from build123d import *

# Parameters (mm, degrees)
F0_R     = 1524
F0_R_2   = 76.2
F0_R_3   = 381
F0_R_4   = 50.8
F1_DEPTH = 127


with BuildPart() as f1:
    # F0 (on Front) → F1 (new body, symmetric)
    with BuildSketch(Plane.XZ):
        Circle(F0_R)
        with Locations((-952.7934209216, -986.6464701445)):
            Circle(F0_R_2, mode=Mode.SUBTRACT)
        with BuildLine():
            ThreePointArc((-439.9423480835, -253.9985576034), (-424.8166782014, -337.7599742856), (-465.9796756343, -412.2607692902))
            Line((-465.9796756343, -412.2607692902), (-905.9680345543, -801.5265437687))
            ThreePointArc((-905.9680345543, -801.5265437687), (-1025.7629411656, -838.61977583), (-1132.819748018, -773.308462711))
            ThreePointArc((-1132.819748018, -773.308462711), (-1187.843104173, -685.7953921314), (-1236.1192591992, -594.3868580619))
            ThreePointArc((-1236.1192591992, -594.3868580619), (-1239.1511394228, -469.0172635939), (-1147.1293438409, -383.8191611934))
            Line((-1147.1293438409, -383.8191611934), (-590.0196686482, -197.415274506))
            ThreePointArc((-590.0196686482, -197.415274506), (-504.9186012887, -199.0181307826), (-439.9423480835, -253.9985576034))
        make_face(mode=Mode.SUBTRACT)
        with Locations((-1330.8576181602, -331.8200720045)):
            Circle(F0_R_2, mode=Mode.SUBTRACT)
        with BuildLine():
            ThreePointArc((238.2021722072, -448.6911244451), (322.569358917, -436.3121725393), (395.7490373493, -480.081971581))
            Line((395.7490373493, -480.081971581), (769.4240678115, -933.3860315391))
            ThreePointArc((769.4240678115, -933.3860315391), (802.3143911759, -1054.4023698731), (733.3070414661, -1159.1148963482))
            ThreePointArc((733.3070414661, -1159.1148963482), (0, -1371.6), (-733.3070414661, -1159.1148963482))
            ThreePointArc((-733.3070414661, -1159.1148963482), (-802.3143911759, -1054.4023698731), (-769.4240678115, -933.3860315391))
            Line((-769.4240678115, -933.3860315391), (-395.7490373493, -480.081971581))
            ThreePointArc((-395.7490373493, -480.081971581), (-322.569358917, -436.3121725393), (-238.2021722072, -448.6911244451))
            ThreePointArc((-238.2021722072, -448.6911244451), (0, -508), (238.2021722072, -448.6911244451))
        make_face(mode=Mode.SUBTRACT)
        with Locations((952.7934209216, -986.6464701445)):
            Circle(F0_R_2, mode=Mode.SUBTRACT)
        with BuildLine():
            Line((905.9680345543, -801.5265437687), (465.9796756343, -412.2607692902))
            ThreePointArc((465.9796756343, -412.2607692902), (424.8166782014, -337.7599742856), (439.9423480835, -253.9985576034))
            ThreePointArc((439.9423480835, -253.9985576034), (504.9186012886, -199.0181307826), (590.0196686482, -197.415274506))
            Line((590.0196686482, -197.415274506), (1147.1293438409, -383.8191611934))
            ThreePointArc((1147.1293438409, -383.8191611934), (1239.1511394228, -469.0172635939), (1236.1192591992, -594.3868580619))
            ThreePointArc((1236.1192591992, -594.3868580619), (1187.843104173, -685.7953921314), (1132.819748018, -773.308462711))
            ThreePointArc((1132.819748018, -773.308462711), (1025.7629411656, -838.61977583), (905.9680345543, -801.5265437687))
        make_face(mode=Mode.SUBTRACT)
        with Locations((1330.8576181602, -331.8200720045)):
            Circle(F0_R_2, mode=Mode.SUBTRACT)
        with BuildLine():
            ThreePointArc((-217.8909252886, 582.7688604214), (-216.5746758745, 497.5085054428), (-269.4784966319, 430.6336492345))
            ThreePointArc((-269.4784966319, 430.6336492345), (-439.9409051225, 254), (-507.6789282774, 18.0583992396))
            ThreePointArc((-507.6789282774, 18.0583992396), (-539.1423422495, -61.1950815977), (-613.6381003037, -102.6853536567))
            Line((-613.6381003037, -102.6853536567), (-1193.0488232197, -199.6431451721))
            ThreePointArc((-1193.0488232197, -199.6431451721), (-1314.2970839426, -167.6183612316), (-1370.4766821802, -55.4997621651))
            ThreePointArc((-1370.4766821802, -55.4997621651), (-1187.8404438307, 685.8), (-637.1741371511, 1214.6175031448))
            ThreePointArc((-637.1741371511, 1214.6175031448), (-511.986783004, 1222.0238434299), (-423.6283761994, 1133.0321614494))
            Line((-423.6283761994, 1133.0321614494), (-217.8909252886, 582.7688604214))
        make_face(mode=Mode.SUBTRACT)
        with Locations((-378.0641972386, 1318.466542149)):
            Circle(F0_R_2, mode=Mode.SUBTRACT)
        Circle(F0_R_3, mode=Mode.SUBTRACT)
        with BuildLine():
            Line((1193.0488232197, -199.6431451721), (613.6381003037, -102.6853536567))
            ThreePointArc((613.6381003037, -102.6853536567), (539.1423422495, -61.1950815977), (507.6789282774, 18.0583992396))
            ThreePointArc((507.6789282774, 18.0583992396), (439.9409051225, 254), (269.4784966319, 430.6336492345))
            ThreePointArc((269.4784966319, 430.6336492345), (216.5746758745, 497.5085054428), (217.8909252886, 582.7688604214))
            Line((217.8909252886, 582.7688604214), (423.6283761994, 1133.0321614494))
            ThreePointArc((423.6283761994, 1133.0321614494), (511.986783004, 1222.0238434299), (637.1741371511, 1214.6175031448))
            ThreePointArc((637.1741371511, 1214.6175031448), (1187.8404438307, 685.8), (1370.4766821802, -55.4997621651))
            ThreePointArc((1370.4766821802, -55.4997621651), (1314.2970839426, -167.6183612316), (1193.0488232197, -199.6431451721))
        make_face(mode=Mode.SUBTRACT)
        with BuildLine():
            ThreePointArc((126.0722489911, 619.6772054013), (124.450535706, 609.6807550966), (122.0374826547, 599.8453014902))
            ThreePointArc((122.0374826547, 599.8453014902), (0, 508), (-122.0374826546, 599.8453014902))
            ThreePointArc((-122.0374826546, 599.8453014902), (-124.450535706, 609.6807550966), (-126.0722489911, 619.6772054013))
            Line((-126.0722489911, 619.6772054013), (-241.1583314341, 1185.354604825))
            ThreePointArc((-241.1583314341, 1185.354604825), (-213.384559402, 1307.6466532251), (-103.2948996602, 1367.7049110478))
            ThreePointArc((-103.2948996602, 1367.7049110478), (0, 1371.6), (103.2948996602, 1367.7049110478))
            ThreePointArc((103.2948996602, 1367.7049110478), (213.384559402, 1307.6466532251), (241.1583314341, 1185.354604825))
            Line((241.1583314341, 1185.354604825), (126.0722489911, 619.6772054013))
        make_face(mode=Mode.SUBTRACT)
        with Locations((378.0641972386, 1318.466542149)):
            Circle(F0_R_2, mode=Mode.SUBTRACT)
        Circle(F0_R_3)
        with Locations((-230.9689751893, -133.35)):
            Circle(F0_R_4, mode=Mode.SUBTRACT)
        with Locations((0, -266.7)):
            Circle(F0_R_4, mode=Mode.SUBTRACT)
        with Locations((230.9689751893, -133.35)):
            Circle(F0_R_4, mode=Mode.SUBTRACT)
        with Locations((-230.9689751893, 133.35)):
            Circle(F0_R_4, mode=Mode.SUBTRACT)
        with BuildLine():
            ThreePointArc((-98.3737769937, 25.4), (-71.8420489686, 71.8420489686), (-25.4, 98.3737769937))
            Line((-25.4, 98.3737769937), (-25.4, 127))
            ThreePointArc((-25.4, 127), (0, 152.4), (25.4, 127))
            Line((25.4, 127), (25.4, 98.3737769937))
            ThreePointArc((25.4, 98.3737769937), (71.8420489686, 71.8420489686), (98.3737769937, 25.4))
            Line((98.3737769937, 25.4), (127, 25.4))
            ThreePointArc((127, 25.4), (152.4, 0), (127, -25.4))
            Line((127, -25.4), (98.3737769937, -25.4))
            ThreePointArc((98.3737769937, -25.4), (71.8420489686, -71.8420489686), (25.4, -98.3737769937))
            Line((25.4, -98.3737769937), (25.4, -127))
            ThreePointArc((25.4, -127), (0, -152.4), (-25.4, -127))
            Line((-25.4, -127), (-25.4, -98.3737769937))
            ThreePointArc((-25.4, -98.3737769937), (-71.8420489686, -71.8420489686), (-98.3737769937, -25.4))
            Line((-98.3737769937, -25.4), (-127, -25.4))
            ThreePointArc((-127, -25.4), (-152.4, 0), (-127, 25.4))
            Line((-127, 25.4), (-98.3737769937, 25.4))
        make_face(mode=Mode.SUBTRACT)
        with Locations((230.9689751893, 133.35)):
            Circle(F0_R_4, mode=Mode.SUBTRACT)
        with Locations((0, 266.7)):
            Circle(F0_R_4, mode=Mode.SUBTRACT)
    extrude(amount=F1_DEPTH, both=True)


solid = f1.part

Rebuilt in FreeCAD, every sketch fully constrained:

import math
import FreeCAD as App
import Part
import Sketcher

V = App.Vector
Q = App.Units.Quantity

doc = App.newDocument("Part")
body = doc.addObject("PartDesign::Body", "Body")

# Sketch on XZ plane
sketch1 = body.newObject("Sketcher::SketchObject", "Sketch")
sketch1.AttachmentSupport = (doc.getObject("XZ_Plane"), [""])
sketch1.MapMode = "FlatFace"
sketch1.addGeometry([
    Part.Circle(V(0, 0, 0), V(0, 0, 1), 1524),  # 0
    Part.Circle(V(-952.793421, -986.64647, 0), V(0, 0, 1), 76.2),  # 1
    Part.ArcOfCircle(Part.Circle(V(0, 0, 0), V(0, 0, 1), 508), math.radians(-117.963041), math.radians(-62.036959)),  # 2
    Part.ArcOfCircle(Part.Circle(V(297.752715, -560.863906, 0), V(0, 0, 1), 127), math.radians(39.5), math.radians(117.963041)),  # 3
    Part.LineSegment(V(395.749037, -480.081972, 0), V(769.424068, -933.386032, 0)),  # 4
    Part.ArcOfCircle(Part.Circle(V(651.828481, -1030.324352, 0), V(0, 0, 1), 152.4), math.radians(-57.680756), math.radians(39.5)),  # 5
    Part.ArcOfCircle(Part.Circle(V(0, 0, 0), V(0, 0, 1), 1371.6), math.radians(-122.319244), math.radians(-57.680756)),  # 6
    Part.ArcOfCircle(Part.Circle(V(-651.828481, -1030.324352, 0), V(0, 0, 1), 152.4), math.radians(140.5), math.radians(237.680756)),  # 7
    Part.LineSegment(V(-769.424068, -933.386032, 0), V(-395.749037, -480.081972, 0)),  # 8
    Part.ArcOfCircle(Part.Circle(V(-297.752715, -560.863906, 0), V(0, 0, 1), 127), math.radians(62.036959), math.radians(140.5)),  # 9
    Part.ArcOfCircle(Part.Circle(V(-549.722444, -317.852535, 0), V(0, 0, 1), 127), math.radians(30.184573), math.radians(108.499778)),  # 10
    Part.ArcOfCircle(Part.Circle(V(-550.132053, -317.143066, 0), V(0, 0, 1), 127), math.radians(-48.500222), math.radians(29.814982)),  # 11
    Part.LineSegment(V(-465.979676, -412.260769, 0), V(-905.968035, -801.526544, 0)),  # 12
    Part.ArcOfCircle(Part.Circle(V(-1006.950887, -687.3853, 0), V(0, 0, 1), 152.4), math.radians(-145.680978), math.radians(-48.500222)),  # 13
    Part.ArcOfCircle(Part.Circle(V(0, 0, 0), V(0, 0, 1), 1371.6), math.radians(-154.319466), math.radians(-145.680978)),  # 14
    Part.ArcOfCircle(Part.Circle(V(-1098.772675, -528.343874, 0), V(0, 0, 1), 152.4), math.radians(108.499778), math.radians(205.680534)),  # 15
    Part.LineSegment(V(-1147.129344, -383.819161, 0), V(-590.019669, -197.415275, 0)),  # 16
    Part.Circle(V(-1330.857618, -331.820072, 0), V(0, 0, 1), 76.2),  # 17
    Part.Circle(V(0, -266.7, 0), V(0, 0, 1), 50.8),  # 18
    Part.Circle(V(-230.968975, -133.35, 0), V(0, 0, 1), 50.8),  # 19
    Part.LineSegment(V(-127, 25.4, 0), V(-98.373777, 25.4, 0)),  # 20
    Part.ArcOfCircle(Part.Circle(V(0, 0, 0), V(0, 0, 1), 101.6), math.radians(104.477512), math.radians(165.522488)),  # 21
    Part.LineSegment(V(-25.4, 98.373777, 0), V(-25.4, 127, 0)),  # 22
    Part.ArcOfCircle(Part.Circle(V(0, 127, 0), V(0, 0, 1), 25.4), math.radians(0), math.radians(180)),  # 23
    Part.LineSegment(V(25.4, 127, 0), V(25.4, 98.373777, 0)),  # 24
    Part.ArcOfCircle(Part.Circle(V(0, 0, 0), V(0, 0, 1), 101.6), math.radians(14.477512), math.radians(75.522488)),  # 25
    Part.LineSegment(V(98.373777, 25.4, 0), V(127, 25.4, 0)),  # 26
    Part.ArcOfCircle(Part.Circle(V(127, 0, 0), V(0, 0, 1), 25.4), math.radians(-90), math.radians(90)),  # 27
    Part.LineSegment(V(127, -25.4, 0), V(98.373777, -25.4, 0)),  # 28
    Part.ArcOfCircle(Part.Circle(V(0, 0, 0), V(0, 0, 1), 101.6), math.radians(-75.522488), math.radians(-14.477512)),  # 29
    Part.LineSegment(V(25.4, -98.373777, 0), V(25.4, -127, 0)),  # 30
    Part.ArcOfCircle(Part.Circle(V(0, -127, 0), V(0, 0, 1), 25.4), math.radians(180), math.radians(360)),  # 31
    Part.LineSegment(V(-25.4, -127, 0), V(-25.4, -98.373777, 0)),  # 32
    Part.ArcOfCircle(Part.Circle(V(0, 0, 0), V(0, 0, 1), 101.6), math.radians(-165.522488), math.radians(-104.477512)),  # 33
    Part.LineSegment(V(-98.373777, -25.4, 0), V(-127, -25.4, 0)),  # 34
    Part.ArcOfCircle(Part.Circle(V(-127, 0, 0), V(0, 0, 1), 25.4), math.radians(90), math.radians(270)),  # 35
    Part.Circle(V(952.793421, -986.64647, 0), V(0, 0, 1), 76.2),  # 36
    Part.Circle(V(230.968975, -133.35, 0), V(0, 0, 1), 50.8),  # 37
    Part.ArcOfCircle(Part.Circle(V(1006.950887, -687.3853, 0), V(0, 0, 1), 152.4), math.radians(-131.499778), math.radians(-34.319022)),  # 38
    Part.LineSegment(V(905.968035, -801.526544, 0), V(465.979676, -412.260769, 0)),  # 39
    Part.ArcOfCircle(Part.Circle(V(550.132053, -317.143066, 0), V(0, 0, 1), 127), math.radians(150.185018), math.radians(228.500222)),  # 40
    Part.ArcOfCircle(Part.Circle(V(549.722444, -317.852535, 0), V(0, 0, 1), 127), math.radians(71.500222), math.radians(149.815427)),  # 41
    Part.LineSegment(V(590.019669, -197.415275, 0), V(1147.129344, -383.819161, 0)),  # 42
    Part.ArcOfCircle(Part.Circle(V(1098.772675, -528.343874, 0), V(0, 0, 1), 152.4), math.radians(-25.680534), math.radians(71.500222)),  # 43
    Part.ArcOfCircle(Part.Circle(V(0, 0, 0), V(0, 0, 1), 1371.6), math.radians(-34.319022), math.radians(-25.680534)),  # 44
    Part.Circle(V(1330.857618, -331.820072, 0), V(0, 0, 1), 76.2),  # 45
    Part.LineSegment(V(-423.628376, 1133.032161, 0), V(-217.890925, 582.76886, 0)),  # 46
    Part.ArcOfCircle(Part.Circle(V(-336.848121, 538.292062, 0), V(0, 0, 1), 127), math.radians(-57.962819), math.radians(20.500222)),  # 47
    Part.ArcOfCircle(Part.Circle(V(0, 0, 0), V(0, 0, 1), 508), math.radians(122.037181), math.radians(177.962819)),  # 48
    Part.ArcOfCircle(Part.Circle(V(-634.59866, 22.572999, 0), V(0, 0, 1), 127), math.radians(-80.500222), math.radians(-2.037181)),  # 49
    Part.LineSegment(V(-613.6381, -102.685354, 0), V(-1193.048823, -199.643145, 0)),  # 50
    Part.ArcOfCircle(Part.Circle(V(-1218.201495, -49.333122, 0), V(0, 0, 1), 152.4), math.radians(-177.680978), math.radians(-80.500222)),  # 51
    Part.ArcOfCircle(Part.Circle(V(0, 0, 0), V(0, 0, 1), 1371.6), math.radians(117.680978), math.radians(182.319022)),  # 52
    Part.ArcOfCircle(Part.Circle(V(-566.377011, 1079.660003, 0), V(0, 0, 1), 152.4), math.radians(20.500222), math.radians(117.680978)),  # 53
    Part.Circle(V(-230.968975, 133.35, 0), V(0, 0, 1), 50.8),  # 54
    Part.Circle(V(0, 266.7, 0), V(0, 0, 1), 50.8),  # 55
    Part.LineSegment(V(241.158331, 1185.354605, 0), V(126.072249, 619.677205, 0)),  # 56
    Part.ArcOfCircle(Part.Circle(V(0, 635, 0), V(0, 0, 1), 127), math.radians(-16.069827), math.radians(-6.929729)),  # 57
    Part.ArcOfCircle(Part.Circle(V(0, 635, 0), V(0, 0, 1), 127), math.radians(-163.930173), math.radians(-16.069827)),  # 58
    Part.ArcOfCircle(Part.Circle(V(0, 635, 0), V(0, 0, 1), 127), math.radians(-173.070271), math.radians(-163.930173)),  # 59
    Part.LineSegment(V(-126.072249, 619.677205, 0), V(-241.158331, 1185.354605, 0)),  # 60
    Part.ArcOfCircle(Part.Circle(V(-91.817689, 1215.737699, 0), V(0, 0, 1), 152.4), math.radians(94.319022), math.radians(191.499778)),  # 61
    Part.ArcOfCircle(Part.Circle(V(0, 0, 0), V(0, 0, 1), 1371.6), math.radians(85.680978), math.radians(94.319022)),  # 62
    Part.ArcOfCircle(Part.Circle(V(91.817689, 1215.737699, 0), V(0, 0, 1), 152.4), math.radians(-11.499778), math.radians(85.680978)),  # 63
    Part.Circle(V(-378.064197, 1318.466542, 0), V(0, 0, 1), 76.2),  # 64
    Part.Circle(V(230.968975, 133.35, 0), V(0, 0, 1), 50.8),  # 65
    Part.ArcOfCircle(Part.Circle(V(1218.201495, -49.333122, 0), V(0, 0, 1), 152.4), math.radians(-99.499778), math.radians(-2.319022)),  # 66
    Part.LineSegment(V(1193.048823, -199.643145, 0), V(613.6381, -102.685354, 0)),  # 67
    Part.ArcOfCircle(Part.Circle(V(634.59866, 22.572999, 0), V(0, 0, 1), 127), math.radians(-177.962819), math.radians(-99.499778)),  # 68
    Part.ArcOfCircle(Part.Circle(V(0, 0, 0), V(0, 0, 1), 508), math.radians(2.037181), math.radians(57.962819)),  # 69
    Part.ArcOfCircle(Part.Circle(V(336.848121, 538.292062, 0), V(0, 0, 1), 127), math.radians(159.499778), math.radians(237.962819)),  # 70
    Part.LineSegment(V(217.890925, 582.76886, 0), V(423.628376, 1133.032161, 0)),  # 71
    Part.ArcOfCircle(Part.Circle(V(566.377011, 1079.660003, 0), V(0, 0, 1), 152.4), math.radians(62.319022), math.radians(159.499778)),  # 72
    Part.ArcOfCircle(Part.Circle(V(0, 0, 0), V(0, 0, 1), 1371.6), math.radians(-2.319022), math.radians(62.319022)),  # 73
    Part.Circle(V(378.064197, 1318.466542, 0), V(0, 0, 1), 76.2),  # 74
], False)
sketch1.addConstraint([
    Sketcher.Constraint("Tangent", 2, 2, 3, 2),
    Sketcher.Constraint("Tangent", 3, 1, 4, 1),
    Sketcher.Constraint("Tangent", 4, 2, 5, 2),
    Sketcher.Constraint("Tangent", 5, 1, 6, 2),
    Sketcher.Constraint("Tangent", 6, 1, 7, 2),
    Sketcher.Constraint("Tangent", 7, 1, 8, 1),
    Sketcher.Constraint("Tangent", 8, 2, 9, 2),
    Sketcher.Constraint("Tangent", 9, 1, 2, 1),
    Sketcher.Constraint("Coincident", 10, 1, 11, 2),
    Sketcher.Constraint("Tangent", 11, 1, 12, 1),
    Sketcher.Constraint("Tangent", 12, 2, 13, 2),
    Sketcher.Constraint("Tangent", 13, 1, 14, 2),
    Sketcher.Constraint("Tangent", 14, 1, 15, 2),
    Sketcher.Constraint("Tangent", 15, 1, 16, 1),
    Sketcher.Constraint("Tangent", 16, 2, 10, 2),
    Sketcher.Constraint("Coincident", 20, 2, 21, 2),
    Sketcher.Constraint("Coincident", 21, 1, 22, 1),
    Sketcher.Constraint("Tangent", 22, 2, 23, 2),
    Sketcher.Constraint("Tangent", 23, 1, 24, 1),
    Sketcher.Constraint("Coincident", 24, 2, 25, 2),
    Sketcher.Constraint("Coincident", 25, 1, 26, 1),
    Sketcher.Constraint("Tangent", 26, 2, 27, 2),
    Sketcher.Constraint("Tangent", 27, 1, 28, 1),
    Sketcher.Constraint("Coincident", 28, 2, 29, 2),
    Sketcher.Constraint("Coincident", 29, 1, 30, 1),
    Sketcher.Constraint("Tangent", 30, 2, 31, 2),
    Sketcher.Constraint("Tangent", 31, 1, 32, 1),
    Sketcher.Constraint("Coincident", 32, 2, 33, 2),
    Sketcher.Constraint("Coincident", 33, 1, 34, 1),
    Sketcher.Constraint("Tangent", 34, 2, 35, 2),
    Sketcher.Constraint("Tangent", 35, 1, 20, 1),
    Sketcher.Constraint("Tangent", 38, 1, 39, 1),
    Sketcher.Constraint("Tangent", 39, 2, 40, 2),
    Sketcher.Constraint("Coincident", 40, 1, 41, 2),
    Sketcher.Constraint("Tangent", 41, 1, 42, 1),
    Sketcher.Constraint("Tangent", 42, 2, 43, 2),
    Sketcher.Constraint("Tangent", 43, 1, 44, 2),
    Sketcher.Constraint("Tangent", 44, 1, 38, 2),
    Sketcher.Constraint("Tangent", 46, 2, 47, 2),
    Sketcher.Constraint("Tangent", 47, 1, 48, 1),
    Sketcher.Constraint("Tangent", 48, 2, 49, 2),
    Sketcher.Constraint("Tangent", 49, 1, 50, 1),
    Sketcher.Constraint("Tangent", 50, 2, 51, 2),
    Sketcher.Constraint("Tangent", 51, 1, 52, 2),
    Sketcher.Constraint("Tangent", 52, 1, 53, 2),
    Sketcher.Constraint("Tangent", 53, 1, 46, 1),
    Sketcher.Constraint("Coincident", 56, 2, 57, 2),
    Sketcher.Constraint("Tangent", 57, 1, 58, 2),
    Sketcher.Constraint("Tangent", 58, 1, 59, 2),
    Sketcher.Constraint("Coincident", 59, 1, 60, 1),
    Sketcher.Constraint("Tangent", 60, 2, 61, 2),
    Sketcher.Constraint("Tangent", 61, 1, 62, 2),
    Sketcher.Constraint("Tangent", 62, 1, 63, 2),
    Sketcher.Constraint("Tangent", 63, 1, 56, 1),
    Sketcher.Constraint("Tangent", 66, 1, 67, 1),
    Sketcher.Constraint("Tangent", 67, 2, 68, 2),
    Sketcher.Constraint("Tangent", 68, 1, 69, 1),
    Sketcher.Constraint("Tangent", 69, 2, 70, 2),
    Sketcher.Constraint("Tangent", 70, 1, 71, 1),
    Sketcher.Constraint("Tangent", 71, 2, 72, 2),
    Sketcher.Constraint("Tangent", 72, 1, 73, 2),
    Sketcher.Constraint("Tangent", 73, 1, 66, 2),
    Sketcher.Constraint("Horizontal", 20),
    Sketcher.Constraint("Vertical", 22),
    Sketcher.Constraint("Vertical", 24),
    Sketcher.Constraint("Horizontal", 26),
    Sketcher.Constraint("Horizontal", 28),
    Sketcher.Constraint("Vertical", 30),
    Sketcher.Constraint("Vertical", 32),
    Sketcher.Constraint("Horizontal", 34),
    Sketcher.Constraint("Coincident", 0, 3, -1, 1),
    Sketcher.Constraint("Coincident", 2, 3, -1, 1),
    Sketcher.Constraint("Coincident", 6, 3, -1, 1),
    Sketcher.Constraint("Coincident", 14, 3, -1, 1),
    Sketcher.Constraint("Coincident", 21, 3, -1, 1),
    Sketcher.Constraint("Coincident", 25, 3, -1, 1),
    Sketcher.Constraint("Coincident", 29, 3, -1, 1),
    Sketcher.Constraint("Coincident", 33, 3, -1, 1),
    Sketcher.Constraint("Coincident", 44, 3, -1, 1),
    Sketcher.Constraint("Coincident", 48, 3, -1, 1),
    Sketcher.Constraint("Coincident", 52, 3, -1, 1),
    Sketcher.Constraint("Coincident", 62, 3, -1, 1),
    Sketcher.Constraint("Coincident", 69, 3, -1, 1),
    Sketcher.Constraint("Coincident", 73, 3, -1, 1),
    Sketcher.Constraint("Coincident", 59, 3, 57, 3),
    Sketcher.Constraint("Equal", 5, 7),
    Sketcher.Constraint("Equal", 3, 9),
    Sketcher.Constraint("Equal", 9, 10),
    Sketcher.Constraint("Equal", 10, 11),
    Sketcher.Constraint("Equal", 7, 13),
    Sketcher.Constraint("Equal", 6, 14),
    Sketcher.Constraint("Equal", 13, 15),
    Sketcher.Constraint("Equal", 1, 17),
    Sketcher.Constraint("Equal", 18, 19),
    Sketcher.Constraint("Equal", 21, 25),
    Sketcher.Constraint("Equal", 23, 27),
    Sketcher.Constraint("Equal", 25, 29),
    Sketcher.Constraint("Equal", 27, 31),
    Sketcher.Constraint("Equal", 29, 33),
    Sketcher.Constraint("Equal", 31, 35),
    Sketcher.Constraint("Equal", 17, 36),
    Sketcher.Constraint("Equal", 19, 37),
    Sketcher.Constraint("Equal", 15, 38),
    Sketcher.Constraint("Equal", 11, 40),
    Sketcher.Constraint("Equal", 40, 41),
    Sketcher.Constraint("Equal", 38, 43),
    Sketcher.Constraint("Equal", 14, 44),
    Sketcher.Constraint("Equal", 36, 45),
    Sketcher.Constraint("Equal", 41, 47),
    Sketcher.Constraint("Equal", 2, 48),
    Sketcher.Constraint("Equal", 47, 49),
    Sketcher.Constraint("Equal", 43, 51),
    Sketcher.Constraint("Equal", 44, 52),
    Sketcher.Constraint("Equal", 51, 53),
    Sketcher.Constraint("Equal", 37, 54),
    Sketcher.Constraint("Equal", 54, 55),
    Sketcher.Constraint("Equal", 49, 57),
    Sketcher.Constraint("Equal", 53, 61),
    Sketcher.Constraint("Equal", 52, 62),
    Sketcher.Constraint("Equal", 61, 63),
    Sketcher.Constraint("Equal", 45, 64),
    Sketcher.Constraint("Equal", 55, 65),
    Sketcher.Constraint("Equal", 63, 66),
    Sketcher.Constraint("Equal", 59, 68),
    Sketcher.Constraint("Equal", 48, 69),
    Sketcher.Constraint("Equal", 68, 70),
    Sketcher.Constraint("Equal", 66, 72),
    Sketcher.Constraint("Equal", 62, 73),
    Sketcher.Constraint("Equal", 64, 74),
    Sketcher.Constraint("Symmetric", 23, 3, 31, 3, -1, 1),
    Sketcher.Constraint("Symmetric", 27, 3, 35, 3, -1, 1),
    Sketcher.Constraint("Symmetric", 37, 3, 54, 3, -1, 1),
    Sketcher.Constraint("Symmetric", 18, 3, 55, 3, -1, 1),
    Sketcher.Constraint("Symmetric", 19, 3, 65, 3, -1, 1),
    Sketcher.Constraint("Symmetric", 1, 3, 36, 3, -2),
    Sketcher.Constraint("Symmetric", 19, 3, 37, 3, -2),
    Sketcher.Constraint("Symmetric", 11, 3, 40, 3, -2),
    Sketcher.Constraint("Symmetric", 10, 3, 41, 3, -2),
    Sketcher.Constraint("Symmetric", 17, 3, 45, 3, -2),
    Sketcher.Constraint("Symmetric", 64, 3, 74, 3, -2),
    Sketcher.Constraint("Symmetric", 4, 2, 7, 1, -2),
    Sketcher.Constraint("Symmetric", 57, 1, 58, 1, -2),
    Sketcher.Constraint("Symmetric", 50, 2, 66, 1, -2),
    Sketcher.Constraint("Symmetric", 46, 2, 70, 1, -2),
    Sketcher.Constraint("PointOnObject", 18, 3, -2),
    Sketcher.Constraint("PointOnObject", 23, 3, -2),
    Sketcher.Constraint("PointOnObject", 27, 3, -1),
    Sketcher.Constraint("Horizontal", 13, 3, 38, 3),
    Sketcher.Constraint("Horizontal", 15, 3, 43, 3),
    Sketcher.Constraint("Horizontal", 61, 3, 63, 3),
    Sketcher.Constraint("Horizontal", 56, 2, 59, 1),
    Sketcher.Constraint("Equal", 34, 22),
    Sketcher.Constraint("Equal", 8, 12),
    Sketcher.Constraint("Equal", 12, 16),
    Sketcher.Constraint("Equal", 42, 46),
    Sketcher.Constraint("Equal", 46, 50),
    Sketcher.Constraint("Diameter", 0, Q("120 in")),
    Sketcher.Constraint("Diameter", 1, Q("6 in")),
    Sketcher.Constraint("Diameter", 18, Q("4 in")),
    Sketcher.Constraint("Radius", 2, Q("20 in")),
    Sketcher.Constraint("Radius", 3, Q("5 in")),
    Sketcher.Constraint("Radius", 5, Q("6 in")),
    Sketcher.Constraint("Radius", 6, Q("54 in")),
    Sketcher.Constraint("Radius", 21, Q("4 in")),
    Sketcher.Constraint("Radius", 23, Q("1 in")),
    Sketcher.Constraint("DistanceY", -1, 1, 23, 3, Q("5 in")),
    Sketcher.Constraint("DistanceY", -1, 1, 57, 3, Q("25 in")),
    Sketcher.Constraint("DistanceY", 18, 3, -1, 1, Q("10.5 in")),
    Sketcher.Constraint("Angle", 4, Q("-50.5 deg")),
    Sketcher.Constraint("DistanceY", 19, 3, -1, 1, Q("5.25 in")),
    Sketcher.Constraint("DistanceY", 13, 3, -1, 1, 687.3853),
    Sketcher.Constraint("DistanceY", -1, 1, 49, 3, 22.572999),
    Sketcher.Constraint("DistanceY", -1, 1, 61, 3, 1215.737699),
    Sketcher.Constraint("DistanceY", -1, 1, 57, 1, 599.845301),
    Sketcher.Constraint("DistanceX", -1, 1, 67, 2, 613.6381),
    Sketcher.Constraint("DistanceX", 1, 3, -1, 1, 952.793421),
    Sketcher.Constraint("DistanceY", 1, 3, -1, 1, 986.64647),
    Sketcher.Constraint("DistanceX", 17, 3, -1, 1, 1330.857618),
    Sketcher.Constraint("DistanceX", 47, 3, -1, 1, 336.848121),
    Sketcher.Constraint("DistanceX", 10, 1, -1, 1, 439.942348),
    Sketcher.Constraint("DistanceY", 11, 1, -1, 1, 412.260769),
    Sketcher.Constraint("DistanceY", 15, 1, -1, 1, 383.819161),
    Sketcher.Constraint("DistanceX", -1, 1, 56, 2, 126.072249),
    Sketcher.Constraint("DistanceY", 17, 3, -1, 1, 331.820072),
    Sketcher.Constraint("DistanceX", 19, 3, -1, 1, 230.968975),
    Sketcher.Constraint("DistanceX", 64, 3, -1, 1, 378.064197),
    Sketcher.Constraint("DistanceY", -1, 1, 64, 3, 1318.466542),
])
pad1 = body.newObject("PartDesign::Pad", "Pad")
pad1.Profile = sketch1
pad1.Length = Q("10 in")
pad1.Midplane = True

doc.recompute()
